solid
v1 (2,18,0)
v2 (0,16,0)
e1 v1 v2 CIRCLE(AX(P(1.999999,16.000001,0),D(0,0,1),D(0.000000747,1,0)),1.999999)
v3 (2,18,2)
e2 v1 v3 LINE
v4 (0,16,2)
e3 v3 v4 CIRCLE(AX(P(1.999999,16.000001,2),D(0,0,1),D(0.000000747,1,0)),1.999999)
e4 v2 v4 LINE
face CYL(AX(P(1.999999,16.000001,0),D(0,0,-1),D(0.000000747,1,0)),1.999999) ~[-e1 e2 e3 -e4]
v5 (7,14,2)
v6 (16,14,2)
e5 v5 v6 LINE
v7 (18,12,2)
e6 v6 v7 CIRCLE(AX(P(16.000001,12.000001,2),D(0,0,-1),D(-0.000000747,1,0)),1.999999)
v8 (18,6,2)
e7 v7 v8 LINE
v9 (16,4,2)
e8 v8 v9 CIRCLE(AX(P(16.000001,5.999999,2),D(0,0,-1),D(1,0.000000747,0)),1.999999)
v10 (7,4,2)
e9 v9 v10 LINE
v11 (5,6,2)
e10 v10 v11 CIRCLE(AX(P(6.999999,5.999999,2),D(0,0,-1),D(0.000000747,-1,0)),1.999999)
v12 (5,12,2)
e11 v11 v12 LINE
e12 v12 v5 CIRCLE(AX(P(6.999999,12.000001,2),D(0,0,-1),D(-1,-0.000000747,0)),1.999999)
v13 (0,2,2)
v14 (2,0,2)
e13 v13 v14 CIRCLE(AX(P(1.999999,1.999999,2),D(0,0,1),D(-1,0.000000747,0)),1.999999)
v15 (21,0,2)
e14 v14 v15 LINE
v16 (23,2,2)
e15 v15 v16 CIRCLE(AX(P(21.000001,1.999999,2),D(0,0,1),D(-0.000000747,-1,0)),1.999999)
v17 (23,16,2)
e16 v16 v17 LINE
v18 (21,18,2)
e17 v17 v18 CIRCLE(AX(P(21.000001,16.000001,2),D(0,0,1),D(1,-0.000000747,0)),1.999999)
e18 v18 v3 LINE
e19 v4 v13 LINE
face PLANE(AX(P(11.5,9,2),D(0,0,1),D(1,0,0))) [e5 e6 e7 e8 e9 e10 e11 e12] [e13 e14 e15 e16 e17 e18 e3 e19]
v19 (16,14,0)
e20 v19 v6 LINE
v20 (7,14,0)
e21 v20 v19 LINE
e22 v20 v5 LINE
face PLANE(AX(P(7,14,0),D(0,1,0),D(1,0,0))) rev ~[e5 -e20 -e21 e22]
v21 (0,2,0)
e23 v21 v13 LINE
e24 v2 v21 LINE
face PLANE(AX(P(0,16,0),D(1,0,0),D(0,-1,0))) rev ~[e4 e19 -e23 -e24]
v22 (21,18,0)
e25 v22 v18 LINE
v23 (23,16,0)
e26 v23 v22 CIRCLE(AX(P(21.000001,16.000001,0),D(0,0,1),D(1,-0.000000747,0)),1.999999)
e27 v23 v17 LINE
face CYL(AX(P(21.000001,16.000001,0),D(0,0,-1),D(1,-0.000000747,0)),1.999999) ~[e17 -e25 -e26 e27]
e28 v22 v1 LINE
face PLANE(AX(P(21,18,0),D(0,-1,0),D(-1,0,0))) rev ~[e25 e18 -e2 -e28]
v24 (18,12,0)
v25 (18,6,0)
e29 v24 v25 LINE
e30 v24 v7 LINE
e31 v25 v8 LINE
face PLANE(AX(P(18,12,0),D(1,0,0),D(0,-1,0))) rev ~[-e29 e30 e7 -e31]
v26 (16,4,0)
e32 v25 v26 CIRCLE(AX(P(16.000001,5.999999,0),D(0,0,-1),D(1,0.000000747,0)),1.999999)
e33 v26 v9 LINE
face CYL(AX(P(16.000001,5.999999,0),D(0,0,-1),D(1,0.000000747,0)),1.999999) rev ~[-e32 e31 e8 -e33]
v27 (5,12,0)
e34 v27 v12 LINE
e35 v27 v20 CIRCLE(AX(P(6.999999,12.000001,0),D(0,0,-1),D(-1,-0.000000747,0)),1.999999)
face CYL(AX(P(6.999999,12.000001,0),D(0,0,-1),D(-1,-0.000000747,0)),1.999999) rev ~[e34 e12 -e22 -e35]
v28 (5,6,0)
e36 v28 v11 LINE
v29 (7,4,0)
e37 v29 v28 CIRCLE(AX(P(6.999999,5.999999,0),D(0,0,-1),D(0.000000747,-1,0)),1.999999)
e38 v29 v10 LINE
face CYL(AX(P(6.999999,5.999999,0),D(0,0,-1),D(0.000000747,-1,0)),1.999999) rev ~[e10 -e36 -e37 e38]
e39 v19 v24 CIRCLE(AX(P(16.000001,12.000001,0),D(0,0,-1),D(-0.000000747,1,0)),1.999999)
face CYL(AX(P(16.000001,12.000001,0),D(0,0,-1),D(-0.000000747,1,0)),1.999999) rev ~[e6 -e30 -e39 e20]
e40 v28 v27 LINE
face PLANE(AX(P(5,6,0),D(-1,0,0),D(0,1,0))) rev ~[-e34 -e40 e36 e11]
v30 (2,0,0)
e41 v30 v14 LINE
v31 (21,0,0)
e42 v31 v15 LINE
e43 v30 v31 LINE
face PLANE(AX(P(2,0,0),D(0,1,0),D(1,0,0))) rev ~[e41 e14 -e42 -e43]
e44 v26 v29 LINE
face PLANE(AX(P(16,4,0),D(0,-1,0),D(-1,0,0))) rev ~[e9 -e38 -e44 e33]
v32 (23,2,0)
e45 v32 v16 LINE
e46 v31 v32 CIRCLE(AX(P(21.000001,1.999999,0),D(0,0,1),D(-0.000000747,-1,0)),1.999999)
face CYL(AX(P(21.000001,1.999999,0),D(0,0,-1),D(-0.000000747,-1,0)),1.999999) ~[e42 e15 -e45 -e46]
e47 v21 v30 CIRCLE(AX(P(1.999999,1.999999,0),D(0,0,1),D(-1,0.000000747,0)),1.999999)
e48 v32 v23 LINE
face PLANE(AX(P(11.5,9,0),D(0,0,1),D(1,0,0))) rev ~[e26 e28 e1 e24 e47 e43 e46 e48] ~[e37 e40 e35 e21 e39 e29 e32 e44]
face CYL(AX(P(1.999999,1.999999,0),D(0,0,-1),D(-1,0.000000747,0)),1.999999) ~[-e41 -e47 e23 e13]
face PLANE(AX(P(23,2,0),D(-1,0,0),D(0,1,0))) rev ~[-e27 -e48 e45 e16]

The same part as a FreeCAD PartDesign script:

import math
import FreeCAD as App
import Part
import Sketcher
from FreeCAD import Vector
Q = App.Units.Quantity

doc = App.newDocument("Part")
body = doc.addObject("PartDesign::Body", "Body")

# Sketch on XY plane
sketch1 = body.newObject("Sketcher::SketchObject", "Sketch")
sketch1.AttachmentSupport = (doc.getObject("XY_Plane"), [""])
sketch1.MapMode = "FlatFace"
sketch1.addGeometry(Part.ArcOfCircle(Part.Circle(Vector(2, 2, 0), Vector(0, 0, 1), 2), math.radians(180), math.radians(270)), False)
sketch1.addGeometry(Part.LineSegment(Vector(2, 0, 0), Vector(21, 0, 0)), False)
sketch1.addGeometry(Part.ArcOfCircle(Part.Circle(Vector(21, 2, 0), Vector(0, 0, 1), 2), math.radians(-90), math.radians(0)), False)
sketch1.addGeometry(Part.LineSegment(Vector(23, 2, 0), Vector(23, 16, 0)), False)
sketch1.addGeometry(Part.ArcOfCircle(Part.Circle(Vector(21, 16, 0), Vector(0, 0, 1), 2), math.radians(0), math.radians(90)), False)
sketch1.addGeometry(Part.LineSegment(Vector(21, 18, 0), Vector(2, 18, 0)), False)
sketch1.addGeometry(Part.ArcOfCircle(Part.Circle(Vector(2, 16, 0), Vector(0, 0, 1), 2), math.radians(90), math.radians(180)), False)
sketch1.addGeometry(Part.LineSegment(Vector(0, 16, 0), Vector(0, 2, 0)), False)
sketch1.addGeometry(Part.ArcOfCircle(Part.Circle(Vector(7, 6, 0), Vector(0, 0, 1), 2), math.radians(180), math.radians(270)), False)
sketch1.addGeometry(Part.LineSegment(Vector(5, 6, 0), Vector(5, 12, 0)), False)
sketch1.addGeometry(Part.ArcOfCircle(Part.Circle(Vector(7, 12, 0), Vector(0, 0, 1), 2), math.radians(90), math.radians(180)), False)
sketch1.addGeometry(Part.LineSegment(Vector(7, 14, 0), Vector(16, 14, 0)), False)
sketch1.addGeometry(Part.ArcOfCircle(Part.Circle(Vector(16, 12, 0), Vector(0, 0, 1), 2), math.radians(0), math.radians(90)), False)
sketch1.addGeometry(Part.LineSegment(Vector(18, 12, 0), Vector(18, 6, 0)), False)
sketch1.addGeometry(Part.ArcOfCircle(Part.Circle(Vector(16, 6, 0), Vector(0, 0, 1), 2), math.radians(-90), math.radians(0)), False)
sketch1.addGeometry(Part.LineSegment(Vector(16, 4, 0), Vector(7, 4, 0)), False)
sketch1.addConstraint(Sketcher.Constraint("Tangent", 0, 2, 1, 1))
sketch1.addConstraint(Sketcher.Constraint("Tangent", 1, 2, 2, 1))
sketch1.addConstraint(Sketcher.Constraint("Tangent", 2, 2, 3, 1))
sketch1.addConstraint(Sketcher.Constraint("Tangent", 3, 2, 4, 1))
sketch1.addConstraint(Sketcher.Constraint("Tangent", 4, 2, 5, 1))
sketch1.addConstraint(Sketcher.Constraint("Tangent", 5, 2, 6, 1))
sketch1.addConstraint(Sketcher.Constraint("Tangent", 6, 2, 7, 1))
sketch1.addConstraint(Sketcher.Constraint("Tangent", 7, 2, 0, 1))
sketch1.addConstraint(Sketcher.Constraint("Tangent", 8, 1, 9, 1))
sketch1.addConstraint(Sketcher.Constraint("Tangent", 9, 2, 10, 2))
sketch1.addConstraint(Sketcher.Constraint("Tangent", 10, 1, 11, 1))
sketch1.addConstraint(Sketcher.Constraint("Tangent", 11, 2, 12, 2))
sketch1.addConstraint(Sketcher.Constraint("Tangent", 12, 1, 13, 1))
sketch1.addConstraint(Sketcher.Constraint("Tangent", 13, 2, 14, 2))
sketch1.addConstraint(Sketcher.Constraint("Tangent", 14, 1, 15, 1))
sketch1.addConstraint(Sketcher.Constraint("Tangent", 15, 2, 8, 2))
sketch1.addConstraint(Sketcher.Constraint("Horizontal", 1))
sketch1.addConstraint(Sketcher.Constraint("Vertical", 3))
sketch1.addConstraint(Sketcher.Constraint("Horizontal", 5))
sketch1.addConstraint(Sketcher.Constraint("Vertical", 7))
sketch1.addConstraint(Sketcher.Constraint("Vertical", 9))
sketch1.addConstraint(Sketcher.Constraint("Horizontal", 11))
sketch1.addConstraint(Sketcher.Constraint("Vertical", 13))
sketch1.addConstraint(Sketcher.Constraint("Horizontal", 15))
sketch1.addConstraint(Sketcher.Constraint("Equal", 0, 2))
sketch1.addConstraint(Sketcher.Constraint("Equal", 2, 4))
sketch1.addConstraint(Sketcher.Constraint("Equal", 4, 6))
sketch1.addConstraint(Sketcher.Constraint("Equal", 6, 8))
sketch1.addConstraint(Sketcher.Constraint("Equal", 8, 10))
sketch1.addConstraint(Sketcher.Constraint("Equal", 10, 12))
sketch1.addConstraint(Sketcher.Constraint("Equal", 12, 14))
sketch1.addConstraint(Sketcher.Constraint("PointOnObject", 0, 2, -1))
sketch1.addConstraint(Sketcher.Constraint("PointOnObject", 6, 2, -2))
sketch1.addConstraint(Sketcher.Constraint("Radius", 0, Q("1.999999 mm")))
sketch1.addConstraint(Sketcher.Constraint("DistanceX", 1, 1, 1, 2, Q("19 mm")))
sketch1.addConstraint(Sketcher.Constraint("DistanceX", 11, 1, 11, 2, Q("9 mm")))
sketch1.addConstraint(Sketcher.Constraint("DistanceY", 3, 1, 3, 2, Q("14 mm")))
sketch1.addConstraint(Sketcher.Constraint("DistanceY", 9, 1, 9, 2, Q("6 mm")))
sketch1.addConstraint(Sketcher.Constraint("DistanceX", -1, 1, 8, 3, Q("6.999999 mm")))
sketch1.addConstraint(Sketcher.Constraint("DistanceY", -1, 1, 8, 3, Q("5.999999 mm")))
pad1 = body.newObject("PartDesign::Pad", "Pad")
pad1.Profile = sketch1
pad1.Length = 2

doc.recompute()
